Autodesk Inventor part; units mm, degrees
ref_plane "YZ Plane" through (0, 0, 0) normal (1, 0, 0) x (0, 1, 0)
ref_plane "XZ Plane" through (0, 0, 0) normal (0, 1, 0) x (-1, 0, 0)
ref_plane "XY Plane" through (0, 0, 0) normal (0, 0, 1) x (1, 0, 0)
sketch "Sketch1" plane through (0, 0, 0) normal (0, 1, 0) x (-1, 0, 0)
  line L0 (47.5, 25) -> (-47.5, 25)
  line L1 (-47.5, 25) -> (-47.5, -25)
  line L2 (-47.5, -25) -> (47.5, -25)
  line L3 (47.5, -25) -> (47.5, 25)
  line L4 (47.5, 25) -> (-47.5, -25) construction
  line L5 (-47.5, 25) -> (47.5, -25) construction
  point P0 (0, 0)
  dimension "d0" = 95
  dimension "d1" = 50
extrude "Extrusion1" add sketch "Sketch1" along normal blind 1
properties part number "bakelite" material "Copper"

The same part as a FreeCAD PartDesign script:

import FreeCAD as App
import Part
import Sketcher


def add_polygon(sketch, points):
    """Adds a closed chain of lines whose ends are joined by coincident constraints."""
    first, n = sketch.GeometryCount, len(points)
    for a, b in zip(points, points[1:] + points[:1]):
        sketch.addGeometry(Part.LineSegment(App.Vector(*a, 0), App.Vector(*b, 0)), False)
    for i in range(n):
        sketch.addConstraint(Sketcher.Constraint("Coincident", first + i, 2, first + (i + 1) % n, 1))

doc = App.newDocument("Part")
body = doc.addObject("PartDesign::Body", "Body")

# Sketch on XZ plane
sketch1 = body.newObject("Sketcher::SketchObject", "Sketch")
sketch1.AttachmentSupport = (doc.getObject("XZ_Plane"), [""])
sketch1.MapMode = "FlatFace"
add_polygon(sketch1, [(-48, -25), (-48, 25), (48, 25), (48, -25)])  # lines 0-3
sketch1.addConstraint([
    Sketcher.Constraint("Vertical", 0),
    Sketcher.Constraint("Horizontal", 1),
    Sketcher.Constraint("Vertical", 2),
    Sketcher.Constraint("Horizontal", 3),
    Sketcher.Constraint("Symmetric", 0, 2, 2, 2, -1, 1),
    Sketcher.Constraint("DistanceX", 1, 1, 1, 2, 95.0),
    Sketcher.Constraint("DistanceY", 0, 1, 0, 2, 50.0),
])
pad1 = body.newObject("PartDesign::Pad", "Pad")
pad1.Profile = sketch1
pad1.Length = 1
pad1.Reversed = True

doc.recompute()
